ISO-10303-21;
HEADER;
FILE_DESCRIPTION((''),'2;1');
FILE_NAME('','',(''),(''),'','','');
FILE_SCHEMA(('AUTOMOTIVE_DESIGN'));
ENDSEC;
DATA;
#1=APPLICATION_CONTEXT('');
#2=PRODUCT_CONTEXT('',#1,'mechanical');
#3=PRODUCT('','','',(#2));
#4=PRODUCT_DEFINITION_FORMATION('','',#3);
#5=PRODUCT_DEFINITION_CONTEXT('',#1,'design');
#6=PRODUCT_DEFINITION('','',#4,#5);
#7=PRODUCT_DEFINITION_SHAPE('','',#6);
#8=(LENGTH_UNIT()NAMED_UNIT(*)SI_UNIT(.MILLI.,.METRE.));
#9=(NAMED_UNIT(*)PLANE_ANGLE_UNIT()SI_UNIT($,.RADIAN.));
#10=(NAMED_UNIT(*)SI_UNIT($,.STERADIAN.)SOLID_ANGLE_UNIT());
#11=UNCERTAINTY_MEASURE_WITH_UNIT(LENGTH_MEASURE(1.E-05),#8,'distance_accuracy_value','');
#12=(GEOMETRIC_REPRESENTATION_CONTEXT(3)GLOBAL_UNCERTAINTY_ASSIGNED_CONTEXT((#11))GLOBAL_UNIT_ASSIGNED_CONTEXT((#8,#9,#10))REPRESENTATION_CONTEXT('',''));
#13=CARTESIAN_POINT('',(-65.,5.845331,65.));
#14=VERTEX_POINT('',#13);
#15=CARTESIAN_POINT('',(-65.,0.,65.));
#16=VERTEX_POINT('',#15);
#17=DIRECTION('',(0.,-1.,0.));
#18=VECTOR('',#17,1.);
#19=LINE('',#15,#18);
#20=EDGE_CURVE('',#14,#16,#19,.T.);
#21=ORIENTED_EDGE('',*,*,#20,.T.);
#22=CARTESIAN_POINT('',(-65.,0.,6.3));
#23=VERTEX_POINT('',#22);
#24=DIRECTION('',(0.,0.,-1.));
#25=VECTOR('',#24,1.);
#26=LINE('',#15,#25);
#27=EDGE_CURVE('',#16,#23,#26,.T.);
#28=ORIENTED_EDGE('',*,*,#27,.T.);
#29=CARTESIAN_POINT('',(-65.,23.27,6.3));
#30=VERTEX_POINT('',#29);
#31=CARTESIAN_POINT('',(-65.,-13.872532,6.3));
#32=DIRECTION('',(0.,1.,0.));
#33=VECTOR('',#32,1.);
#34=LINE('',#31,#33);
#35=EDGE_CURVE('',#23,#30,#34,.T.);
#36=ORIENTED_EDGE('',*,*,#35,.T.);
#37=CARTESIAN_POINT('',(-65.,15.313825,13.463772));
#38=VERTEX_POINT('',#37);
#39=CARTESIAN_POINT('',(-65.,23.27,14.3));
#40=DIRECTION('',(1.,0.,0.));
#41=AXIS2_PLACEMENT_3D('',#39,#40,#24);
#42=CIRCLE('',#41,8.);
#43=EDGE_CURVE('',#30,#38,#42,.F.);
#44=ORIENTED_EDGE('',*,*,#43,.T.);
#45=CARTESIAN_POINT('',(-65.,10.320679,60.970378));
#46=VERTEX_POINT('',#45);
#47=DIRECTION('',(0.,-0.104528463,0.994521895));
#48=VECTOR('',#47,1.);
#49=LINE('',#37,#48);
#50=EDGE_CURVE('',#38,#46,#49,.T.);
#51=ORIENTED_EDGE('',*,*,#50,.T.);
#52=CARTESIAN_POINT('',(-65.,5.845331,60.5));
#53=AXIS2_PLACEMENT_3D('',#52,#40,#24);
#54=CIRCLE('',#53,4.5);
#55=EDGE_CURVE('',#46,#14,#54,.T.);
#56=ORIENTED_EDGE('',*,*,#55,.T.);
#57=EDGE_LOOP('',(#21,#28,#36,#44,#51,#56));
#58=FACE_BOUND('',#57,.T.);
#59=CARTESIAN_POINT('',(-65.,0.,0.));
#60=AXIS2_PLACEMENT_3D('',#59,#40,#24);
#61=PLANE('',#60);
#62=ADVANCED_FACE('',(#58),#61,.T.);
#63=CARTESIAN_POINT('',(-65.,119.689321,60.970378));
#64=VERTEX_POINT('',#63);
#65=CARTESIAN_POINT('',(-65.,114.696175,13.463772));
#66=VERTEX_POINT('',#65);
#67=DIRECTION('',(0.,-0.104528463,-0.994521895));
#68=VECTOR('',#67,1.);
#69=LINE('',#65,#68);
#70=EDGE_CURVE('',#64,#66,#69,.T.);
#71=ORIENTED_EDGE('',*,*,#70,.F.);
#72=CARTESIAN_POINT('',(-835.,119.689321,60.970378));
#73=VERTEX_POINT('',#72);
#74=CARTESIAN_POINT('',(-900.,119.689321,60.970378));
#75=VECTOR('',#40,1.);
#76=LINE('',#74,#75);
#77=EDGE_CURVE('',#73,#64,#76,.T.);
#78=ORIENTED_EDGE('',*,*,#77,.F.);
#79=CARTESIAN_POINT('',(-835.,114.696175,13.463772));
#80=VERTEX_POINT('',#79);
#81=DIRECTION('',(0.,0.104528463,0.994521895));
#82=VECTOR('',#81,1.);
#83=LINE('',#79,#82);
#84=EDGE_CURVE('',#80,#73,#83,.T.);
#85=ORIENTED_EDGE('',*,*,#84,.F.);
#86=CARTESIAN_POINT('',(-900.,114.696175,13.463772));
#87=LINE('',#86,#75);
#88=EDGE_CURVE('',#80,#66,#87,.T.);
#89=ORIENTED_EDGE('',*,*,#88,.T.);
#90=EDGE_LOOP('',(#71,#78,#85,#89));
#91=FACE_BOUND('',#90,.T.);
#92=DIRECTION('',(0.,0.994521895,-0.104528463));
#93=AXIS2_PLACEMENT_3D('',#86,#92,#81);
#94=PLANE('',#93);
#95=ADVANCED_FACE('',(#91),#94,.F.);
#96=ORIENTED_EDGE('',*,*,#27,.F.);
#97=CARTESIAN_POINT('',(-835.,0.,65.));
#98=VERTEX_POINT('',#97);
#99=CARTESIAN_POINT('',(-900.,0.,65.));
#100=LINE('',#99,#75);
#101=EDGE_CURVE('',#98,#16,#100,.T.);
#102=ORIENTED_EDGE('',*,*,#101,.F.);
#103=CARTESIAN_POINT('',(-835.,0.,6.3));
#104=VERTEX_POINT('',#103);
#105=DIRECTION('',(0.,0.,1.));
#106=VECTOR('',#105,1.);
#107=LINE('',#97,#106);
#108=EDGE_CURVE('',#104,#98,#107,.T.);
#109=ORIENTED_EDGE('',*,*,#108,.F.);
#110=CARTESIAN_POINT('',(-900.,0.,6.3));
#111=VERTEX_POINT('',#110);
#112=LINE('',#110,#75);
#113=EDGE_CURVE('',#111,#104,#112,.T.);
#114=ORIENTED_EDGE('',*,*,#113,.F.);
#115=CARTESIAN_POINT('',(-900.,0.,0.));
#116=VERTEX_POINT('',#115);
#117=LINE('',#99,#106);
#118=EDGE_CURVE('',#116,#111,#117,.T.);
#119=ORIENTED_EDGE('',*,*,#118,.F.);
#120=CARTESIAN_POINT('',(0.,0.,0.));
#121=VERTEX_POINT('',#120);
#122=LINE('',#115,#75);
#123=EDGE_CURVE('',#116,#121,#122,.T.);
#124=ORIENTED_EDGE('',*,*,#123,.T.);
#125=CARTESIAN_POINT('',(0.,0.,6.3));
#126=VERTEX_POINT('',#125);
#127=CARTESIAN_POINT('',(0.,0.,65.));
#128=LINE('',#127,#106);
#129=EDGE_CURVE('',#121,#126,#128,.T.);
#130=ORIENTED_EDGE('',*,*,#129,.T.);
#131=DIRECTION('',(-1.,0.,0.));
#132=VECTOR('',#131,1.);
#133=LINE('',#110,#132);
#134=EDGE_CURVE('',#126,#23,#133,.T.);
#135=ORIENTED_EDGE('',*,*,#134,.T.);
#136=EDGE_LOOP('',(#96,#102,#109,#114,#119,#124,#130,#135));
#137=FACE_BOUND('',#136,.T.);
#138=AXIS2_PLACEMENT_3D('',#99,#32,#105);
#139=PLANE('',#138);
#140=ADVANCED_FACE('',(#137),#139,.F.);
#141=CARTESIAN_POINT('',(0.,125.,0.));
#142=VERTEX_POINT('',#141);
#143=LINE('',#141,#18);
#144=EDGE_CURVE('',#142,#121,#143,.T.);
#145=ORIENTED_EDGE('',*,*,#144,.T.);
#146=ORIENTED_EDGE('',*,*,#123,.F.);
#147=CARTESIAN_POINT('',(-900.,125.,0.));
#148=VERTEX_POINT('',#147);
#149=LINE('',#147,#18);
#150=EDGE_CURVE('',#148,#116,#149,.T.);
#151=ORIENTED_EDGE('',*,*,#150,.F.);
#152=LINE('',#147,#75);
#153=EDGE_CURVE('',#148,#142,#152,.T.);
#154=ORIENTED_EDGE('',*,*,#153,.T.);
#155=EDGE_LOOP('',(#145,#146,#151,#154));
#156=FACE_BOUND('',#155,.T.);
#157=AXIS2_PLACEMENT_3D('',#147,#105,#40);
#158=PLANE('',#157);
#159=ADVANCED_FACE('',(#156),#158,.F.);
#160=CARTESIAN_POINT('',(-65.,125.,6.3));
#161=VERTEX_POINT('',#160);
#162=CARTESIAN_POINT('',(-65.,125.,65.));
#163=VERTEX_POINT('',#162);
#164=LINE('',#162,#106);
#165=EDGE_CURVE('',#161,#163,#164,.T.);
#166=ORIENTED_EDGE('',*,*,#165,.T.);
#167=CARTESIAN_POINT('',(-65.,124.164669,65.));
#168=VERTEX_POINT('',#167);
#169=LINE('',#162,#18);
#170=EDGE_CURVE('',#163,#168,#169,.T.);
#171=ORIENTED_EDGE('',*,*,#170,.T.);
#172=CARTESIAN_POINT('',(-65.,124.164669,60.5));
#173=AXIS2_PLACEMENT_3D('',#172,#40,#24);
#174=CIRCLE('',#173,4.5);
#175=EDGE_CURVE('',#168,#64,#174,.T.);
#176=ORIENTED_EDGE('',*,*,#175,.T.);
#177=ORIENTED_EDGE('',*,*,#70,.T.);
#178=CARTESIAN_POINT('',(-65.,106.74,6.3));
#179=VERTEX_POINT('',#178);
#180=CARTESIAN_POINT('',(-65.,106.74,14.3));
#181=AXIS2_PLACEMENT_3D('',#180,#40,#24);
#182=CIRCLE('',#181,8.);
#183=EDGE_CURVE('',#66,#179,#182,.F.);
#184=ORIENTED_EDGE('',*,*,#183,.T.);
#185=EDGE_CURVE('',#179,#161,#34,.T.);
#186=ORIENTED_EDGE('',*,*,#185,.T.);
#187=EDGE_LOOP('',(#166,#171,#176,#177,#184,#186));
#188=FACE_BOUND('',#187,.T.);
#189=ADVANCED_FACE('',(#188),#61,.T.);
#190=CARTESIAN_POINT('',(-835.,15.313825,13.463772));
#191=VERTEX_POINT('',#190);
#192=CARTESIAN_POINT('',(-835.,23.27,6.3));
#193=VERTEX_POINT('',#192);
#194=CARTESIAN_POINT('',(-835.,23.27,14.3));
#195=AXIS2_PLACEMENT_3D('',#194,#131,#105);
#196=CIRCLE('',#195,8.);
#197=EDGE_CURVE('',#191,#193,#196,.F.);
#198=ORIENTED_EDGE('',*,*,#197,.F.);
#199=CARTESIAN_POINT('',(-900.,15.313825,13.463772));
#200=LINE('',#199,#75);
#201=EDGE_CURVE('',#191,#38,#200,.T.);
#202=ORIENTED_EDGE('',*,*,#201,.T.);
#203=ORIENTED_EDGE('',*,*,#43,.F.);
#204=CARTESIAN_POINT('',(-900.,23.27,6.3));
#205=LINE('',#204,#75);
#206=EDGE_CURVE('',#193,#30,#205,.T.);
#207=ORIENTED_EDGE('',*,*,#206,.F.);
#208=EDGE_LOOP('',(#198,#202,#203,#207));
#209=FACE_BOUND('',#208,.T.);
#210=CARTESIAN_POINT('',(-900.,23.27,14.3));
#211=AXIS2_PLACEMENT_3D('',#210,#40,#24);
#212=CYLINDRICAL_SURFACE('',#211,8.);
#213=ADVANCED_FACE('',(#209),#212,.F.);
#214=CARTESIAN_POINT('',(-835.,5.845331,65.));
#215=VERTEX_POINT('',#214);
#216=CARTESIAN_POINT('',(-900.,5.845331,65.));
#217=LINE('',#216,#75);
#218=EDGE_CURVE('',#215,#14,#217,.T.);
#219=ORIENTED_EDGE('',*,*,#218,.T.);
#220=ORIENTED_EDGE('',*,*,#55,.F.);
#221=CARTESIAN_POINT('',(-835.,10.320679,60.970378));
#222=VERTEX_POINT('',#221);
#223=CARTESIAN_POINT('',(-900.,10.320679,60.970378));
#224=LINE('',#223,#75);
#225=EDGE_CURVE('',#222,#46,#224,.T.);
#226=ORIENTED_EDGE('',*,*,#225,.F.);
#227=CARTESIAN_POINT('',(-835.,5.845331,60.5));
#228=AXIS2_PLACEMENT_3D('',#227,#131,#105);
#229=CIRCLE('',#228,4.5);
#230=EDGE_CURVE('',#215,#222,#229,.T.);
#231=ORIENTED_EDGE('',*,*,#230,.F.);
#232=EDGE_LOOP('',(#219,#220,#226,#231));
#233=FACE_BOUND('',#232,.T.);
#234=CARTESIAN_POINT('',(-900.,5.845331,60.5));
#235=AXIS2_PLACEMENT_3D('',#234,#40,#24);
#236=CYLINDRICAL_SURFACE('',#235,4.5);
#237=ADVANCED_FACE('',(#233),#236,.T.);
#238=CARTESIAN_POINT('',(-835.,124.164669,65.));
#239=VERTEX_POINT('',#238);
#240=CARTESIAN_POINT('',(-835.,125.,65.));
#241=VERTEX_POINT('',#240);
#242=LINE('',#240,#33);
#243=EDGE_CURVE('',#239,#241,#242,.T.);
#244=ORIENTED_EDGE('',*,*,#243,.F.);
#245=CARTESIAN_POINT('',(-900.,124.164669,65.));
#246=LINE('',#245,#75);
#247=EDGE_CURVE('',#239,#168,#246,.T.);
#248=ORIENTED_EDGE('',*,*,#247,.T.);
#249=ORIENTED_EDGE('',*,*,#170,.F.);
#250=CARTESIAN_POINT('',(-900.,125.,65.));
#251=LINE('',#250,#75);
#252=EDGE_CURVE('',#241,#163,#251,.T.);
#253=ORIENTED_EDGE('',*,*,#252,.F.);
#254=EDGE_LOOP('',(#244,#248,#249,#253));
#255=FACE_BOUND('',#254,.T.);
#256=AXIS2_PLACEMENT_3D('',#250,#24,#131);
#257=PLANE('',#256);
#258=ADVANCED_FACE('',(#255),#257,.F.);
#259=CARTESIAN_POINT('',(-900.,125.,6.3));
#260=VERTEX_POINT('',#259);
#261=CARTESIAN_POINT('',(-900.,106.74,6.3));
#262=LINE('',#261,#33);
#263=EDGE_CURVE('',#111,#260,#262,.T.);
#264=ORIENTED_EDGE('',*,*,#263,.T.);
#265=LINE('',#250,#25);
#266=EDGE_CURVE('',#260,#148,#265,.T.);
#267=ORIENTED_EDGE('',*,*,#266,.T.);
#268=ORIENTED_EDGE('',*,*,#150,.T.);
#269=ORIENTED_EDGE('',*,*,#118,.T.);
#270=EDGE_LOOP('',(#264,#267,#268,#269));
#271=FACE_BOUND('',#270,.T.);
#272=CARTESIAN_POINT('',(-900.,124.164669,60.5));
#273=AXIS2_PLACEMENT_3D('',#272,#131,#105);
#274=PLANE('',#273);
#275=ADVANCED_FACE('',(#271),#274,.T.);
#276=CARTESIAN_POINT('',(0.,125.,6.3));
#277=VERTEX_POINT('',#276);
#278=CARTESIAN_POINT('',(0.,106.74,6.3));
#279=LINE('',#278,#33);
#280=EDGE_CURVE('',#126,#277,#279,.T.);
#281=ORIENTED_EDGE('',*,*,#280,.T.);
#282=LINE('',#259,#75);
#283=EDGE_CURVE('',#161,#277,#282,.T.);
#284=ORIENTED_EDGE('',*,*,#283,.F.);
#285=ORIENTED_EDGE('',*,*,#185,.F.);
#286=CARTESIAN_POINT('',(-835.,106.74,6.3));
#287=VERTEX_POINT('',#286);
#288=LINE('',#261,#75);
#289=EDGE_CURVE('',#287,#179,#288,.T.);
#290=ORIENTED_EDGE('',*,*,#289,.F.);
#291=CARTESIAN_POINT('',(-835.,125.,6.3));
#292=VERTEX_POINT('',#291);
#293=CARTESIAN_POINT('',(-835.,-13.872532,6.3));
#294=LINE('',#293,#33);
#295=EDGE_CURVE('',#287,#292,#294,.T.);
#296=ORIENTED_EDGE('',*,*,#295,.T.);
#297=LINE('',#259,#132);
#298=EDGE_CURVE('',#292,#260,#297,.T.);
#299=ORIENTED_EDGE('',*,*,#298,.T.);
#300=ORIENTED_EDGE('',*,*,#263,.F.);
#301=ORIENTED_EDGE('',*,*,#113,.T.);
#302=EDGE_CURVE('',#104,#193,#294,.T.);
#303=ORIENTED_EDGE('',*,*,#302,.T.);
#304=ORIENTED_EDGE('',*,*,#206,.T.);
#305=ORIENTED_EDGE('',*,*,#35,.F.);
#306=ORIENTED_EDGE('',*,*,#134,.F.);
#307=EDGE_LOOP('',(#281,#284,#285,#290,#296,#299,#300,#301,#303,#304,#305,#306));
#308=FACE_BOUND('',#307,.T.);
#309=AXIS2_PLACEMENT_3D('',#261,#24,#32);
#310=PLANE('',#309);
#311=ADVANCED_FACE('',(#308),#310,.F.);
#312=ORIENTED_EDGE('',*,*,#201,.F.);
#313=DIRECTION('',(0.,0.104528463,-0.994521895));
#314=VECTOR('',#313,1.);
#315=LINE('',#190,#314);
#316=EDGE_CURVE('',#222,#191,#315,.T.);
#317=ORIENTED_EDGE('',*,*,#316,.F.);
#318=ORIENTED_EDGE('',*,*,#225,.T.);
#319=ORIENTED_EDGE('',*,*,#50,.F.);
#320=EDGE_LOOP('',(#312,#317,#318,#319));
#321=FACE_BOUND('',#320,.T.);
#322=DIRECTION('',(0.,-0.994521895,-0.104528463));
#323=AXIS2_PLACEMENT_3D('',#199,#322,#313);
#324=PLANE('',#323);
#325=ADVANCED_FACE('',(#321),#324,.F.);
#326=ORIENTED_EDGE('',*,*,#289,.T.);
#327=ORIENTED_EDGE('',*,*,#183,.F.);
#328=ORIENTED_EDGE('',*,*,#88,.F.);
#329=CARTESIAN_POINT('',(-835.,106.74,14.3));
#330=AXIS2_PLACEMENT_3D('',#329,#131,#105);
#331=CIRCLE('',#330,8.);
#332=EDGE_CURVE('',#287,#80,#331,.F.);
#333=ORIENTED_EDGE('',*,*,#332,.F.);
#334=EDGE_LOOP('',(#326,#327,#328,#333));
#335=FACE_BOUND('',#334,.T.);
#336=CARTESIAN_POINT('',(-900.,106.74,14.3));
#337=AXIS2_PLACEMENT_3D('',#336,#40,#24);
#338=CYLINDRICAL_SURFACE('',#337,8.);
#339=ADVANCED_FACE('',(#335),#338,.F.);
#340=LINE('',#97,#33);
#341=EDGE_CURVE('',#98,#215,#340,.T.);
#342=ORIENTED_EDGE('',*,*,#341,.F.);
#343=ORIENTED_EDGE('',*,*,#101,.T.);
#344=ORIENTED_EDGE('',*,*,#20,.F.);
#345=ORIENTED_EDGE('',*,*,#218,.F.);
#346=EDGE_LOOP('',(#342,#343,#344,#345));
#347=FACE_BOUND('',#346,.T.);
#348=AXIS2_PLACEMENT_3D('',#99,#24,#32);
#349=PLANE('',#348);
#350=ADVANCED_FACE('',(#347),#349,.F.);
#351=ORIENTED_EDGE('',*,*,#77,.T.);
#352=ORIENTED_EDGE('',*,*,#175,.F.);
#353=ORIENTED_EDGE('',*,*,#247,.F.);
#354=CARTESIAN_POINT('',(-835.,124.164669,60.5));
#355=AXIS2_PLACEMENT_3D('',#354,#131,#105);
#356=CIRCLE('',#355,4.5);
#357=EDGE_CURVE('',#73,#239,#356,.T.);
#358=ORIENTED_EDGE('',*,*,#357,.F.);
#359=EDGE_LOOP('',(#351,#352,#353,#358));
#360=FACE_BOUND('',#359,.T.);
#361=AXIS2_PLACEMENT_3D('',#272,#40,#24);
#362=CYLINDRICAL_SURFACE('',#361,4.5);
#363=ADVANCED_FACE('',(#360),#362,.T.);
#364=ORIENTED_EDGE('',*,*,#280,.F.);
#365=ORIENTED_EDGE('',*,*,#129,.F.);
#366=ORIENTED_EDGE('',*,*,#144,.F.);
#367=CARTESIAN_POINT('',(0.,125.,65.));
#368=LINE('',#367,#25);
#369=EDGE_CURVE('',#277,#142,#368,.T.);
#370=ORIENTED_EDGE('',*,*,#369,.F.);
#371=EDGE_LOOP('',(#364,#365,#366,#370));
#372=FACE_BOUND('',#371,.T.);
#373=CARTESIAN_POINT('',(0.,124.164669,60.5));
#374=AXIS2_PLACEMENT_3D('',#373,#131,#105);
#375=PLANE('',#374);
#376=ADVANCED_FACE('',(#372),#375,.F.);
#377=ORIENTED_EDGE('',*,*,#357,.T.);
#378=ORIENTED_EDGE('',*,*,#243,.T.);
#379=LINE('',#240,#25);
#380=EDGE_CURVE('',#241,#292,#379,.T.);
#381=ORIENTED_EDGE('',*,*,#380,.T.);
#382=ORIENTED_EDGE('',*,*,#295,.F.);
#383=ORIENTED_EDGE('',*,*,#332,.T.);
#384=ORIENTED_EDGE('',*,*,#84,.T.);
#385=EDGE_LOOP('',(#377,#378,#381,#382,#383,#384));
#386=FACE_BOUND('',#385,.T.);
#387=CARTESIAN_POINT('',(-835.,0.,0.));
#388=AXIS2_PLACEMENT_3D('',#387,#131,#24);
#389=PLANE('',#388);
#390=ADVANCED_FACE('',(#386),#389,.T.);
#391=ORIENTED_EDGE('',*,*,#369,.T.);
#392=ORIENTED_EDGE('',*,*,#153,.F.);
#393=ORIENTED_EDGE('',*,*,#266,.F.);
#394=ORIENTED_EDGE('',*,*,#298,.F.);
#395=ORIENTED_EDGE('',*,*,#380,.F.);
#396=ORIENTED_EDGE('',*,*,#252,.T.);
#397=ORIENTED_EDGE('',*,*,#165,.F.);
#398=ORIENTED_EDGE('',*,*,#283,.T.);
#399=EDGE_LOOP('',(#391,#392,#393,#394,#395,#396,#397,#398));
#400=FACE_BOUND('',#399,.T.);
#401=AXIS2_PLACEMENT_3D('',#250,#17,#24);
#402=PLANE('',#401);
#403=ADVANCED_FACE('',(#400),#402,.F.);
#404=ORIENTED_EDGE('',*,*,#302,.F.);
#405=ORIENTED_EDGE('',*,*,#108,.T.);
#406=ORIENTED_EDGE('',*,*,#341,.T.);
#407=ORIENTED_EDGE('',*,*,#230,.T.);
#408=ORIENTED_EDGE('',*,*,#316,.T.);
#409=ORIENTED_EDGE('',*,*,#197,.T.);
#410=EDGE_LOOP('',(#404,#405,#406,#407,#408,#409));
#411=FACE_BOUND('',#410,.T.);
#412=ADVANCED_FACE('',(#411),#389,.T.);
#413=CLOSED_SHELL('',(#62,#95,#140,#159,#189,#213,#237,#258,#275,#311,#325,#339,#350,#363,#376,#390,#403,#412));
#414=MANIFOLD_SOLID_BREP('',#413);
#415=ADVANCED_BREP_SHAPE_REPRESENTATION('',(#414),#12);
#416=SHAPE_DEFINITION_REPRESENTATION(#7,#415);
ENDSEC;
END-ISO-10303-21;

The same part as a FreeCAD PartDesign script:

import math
import FreeCAD as App
import Part
import Sketcher
Q = App.Units.Quantity


def add_polygon(sketch, points):
    """Adds a closed chain of lines whose ends are joined by coincident constraints."""
    first, n = sketch.GeometryCount, len(points)
    for a, b in zip(points, points[1:] + points[:1]):
        sketch.addGeometry(Part.LineSegment(App.Vector(*a, 0), App.Vector(*b, 0)), False)
    for i in range(n):
        sketch.addConstraint(Sketcher.Constraint("Coincident", first + i, 2, first + (i + 1) % n, 1))

doc = App.newDocument("Part")
body = doc.addObject("PartDesign::Body", "Body")

# Sketch on YZ plane
sketch1 = doc.addObject("Sketcher::SketchObject", "Sketch")
body.addObject(sketch1)
sketch1.AttachmentSupport = (doc.YZ_Plane, [""])
sketch1.MapMode = "FlatFace"
sketch1.addGeometry([
    Part.LineSegment(App.Vector(125, 65, 0), App.Vector(125, 0, 0)),  # 0
    Part.LineSegment(App.Vector(125, 0, 0), App.Vector(0, 0, 0)),  # 1
    Part.LineSegment(App.Vector(0, 0, 0), App.Vector(0, 65, 0)),  # 2
    Part.LineSegment(App.Vector(0, 65, 0), App.Vector(5.8, 65, 0)),  # 3
    Part.ArcOfCircle(Part.Circle(App.Vector(5.8, 60.5, 0), App.Vector(0, 0, 1), 4.5), math.radians(6), math.radians(90)),  # 4
    Part.LineSegment(App.Vector(10.3, 61, 0), App.Vector(15.3, 13.5, 0)),  # 5
    Part.ArcOfCircle(Part.Circle(App.Vector(23.3, 14.3, 0), App.Vector(0, 0, 1), 8), math.radians(-174), math.radians(-90)),  # 6
    Part.LineSegment(App.Vector(23.3, 6.3, 0), App.Vector(106.7, 6.3, 0)),  # 7
    Part.ArcOfCircle(Part.Circle(App.Vector(106.7, 14.3, 0), App.Vector(0, 0, 1), 8), math.radians(-90), math.radians(-6)),  # 8
    Part.LineSegment(App.Vector(114.7, 13.5, 0), App.Vector(119.7, 61, 0)),  # 9
    Part.ArcOfCircle(Part.Circle(App.Vector(124.2, 60.5, 0), App.Vector(0, 0, 1), 4.5), math.radians(90), math.radians(174)),  # 10
    Part.LineSegment(App.Vector(124.2, 65, 0), App.Vector(125, 65, 0)),  # 11
], False)
sketch1.addConstraint([
    Sketcher.Constraint("Coincident", 0, 2, 1, 1),
    Sketcher.Constraint("Coincident", 1, 2, 2, 1),
    Sketcher.Constraint("Coincident", 2, 2, 3, 1),
    Sketcher.Constraint("Tangent", 3, 2, 4, 2),
    Sketcher.Constraint("Tangent", 4, 1, 5, 1),
    Sketcher.Constraint("Tangent", 5, 2, 6, 1),
    Sketcher.Constraint("Tangent", 6, 2, 7, 1),
    Sketcher.Constraint("Tangent", 7, 2, 8, 1),
    Sketcher.Constraint("Tangent", 8, 2, 9, 1),
    Sketcher.Constraint("Tangent", 9, 2, 10, 2),
    Sketcher.Constraint("Tangent", 10, 1, 11, 1),
    Sketcher.Constraint("Coincident", 11, 2, 0, 1),
    Sketcher.Constraint("Vertical", 0),
    Sketcher.Constraint("Horizontal", 1),
    Sketcher.Constraint("Vertical", 2),
    Sketcher.Constraint("Horizontal", 3),
    Sketcher.Constraint("Horizontal", 7),
    Sketcher.Constraint("Horizontal", 11),
    Sketcher.Constraint("Coincident", 1, 2, -1, 1),
    Sketcher.Constraint("Equal", 6, 8),
    Sketcher.Constraint("Equal", 4, 10),
    Sketcher.Constraint("Horizontal", 4, 3, 10, 3),
    Sketcher.Constraint("Horizontal", 5, 2, 8, 2),
    Sketcher.Constraint("Radius", 6, Q("8 mm")),
    Sketcher.Constraint("Radius", 4, Q("4.5 mm")),
    Sketcher.Constraint("DistanceX", 1, 2, 1, 1, Q("125 mm")),
    Sketcher.Constraint("DistanceY", 0, 2, 0, 1, Q("65 mm")),
    Sketcher.Constraint("Angle", 5, Q("-84 deg")),
    Sketcher.Constraint("DistanceX", 7, 1, 7, 2, Q("83.47 mm")),
    Sketcher.Constraint("DistanceY", -1, 1, 6, 3, Q("14.3 mm")),
    Sketcher.Constraint("DistanceX", -1, 1, 6, 3, Q("23.27 mm")),
])
pad1 = doc.addObject("PartDesign::Pad", "Pad")
body.addObject(pad1)
pad1.Profile = sketch1
pad1.Length = 900
pad1.Reversed = True

# Sketch on YZ plane
sketch2 = doc.addObject("Sketcher::SketchObject", "Sketch001")
body.addObject(sketch2)
sketch2.AttachmentSupport = (doc.YZ_Plane, [""])
sketch2.MapMode = "FlatFace"
add_polygon(sketch2, [(129, 6), (129, 72), (-14, 72), (-14, 6)])  # lines 0-3
sketch2.addConstraint([
    Sketcher.Constraint("Vertical", 0),
    Sketcher.Constraint("Horizontal", 1),
    Sketcher.Constraint("Vertical", 2),
    Sketcher.Constraint("Horizontal", 3),
    Sketcher.Constraint("DistanceY", -1, 1, 2, 2, Q("6.3 mm")),
    Sketcher.Constraint("DistanceY", 0, 1, 0, 2, Q("65.407289 mm")),
    Sketcher.Constraint("DistanceX", 1, 2, 1, 1, Q("142.739037 mm")),
    Sketcher.Constraint("DistanceX", -1, 1, 0, 2, Q("128.866505 mm")),
])
pocket1 = doc.addObject("PartDesign::Pocket", "Pocket")
body.addObject(pocket1)
pocket1.Profile = sketch2
pocket1.Length = 65
doc.recompute()

datumplane = doc.addObject("PartDesign::Plane", "DatumPlane")
body.addObject(datumplane)
datumplane.AttachmentSupport = (doc.YZ_Plane, [""])
datumplane.MapMode = "FlatFace"
datumplane.AttachmentOffset = App.Placement(App.Vector(0, 0, -450), App.Rotation())
mirrored = doc.addObject("PartDesign::Mirrored", "Mirrored")
body.addObject(mirrored)
mirrored.Originals = [pocket1]
mirrored.MirrorPlane = (datumplane, [""])
body.Tip = mirrored

doc.recompute()
